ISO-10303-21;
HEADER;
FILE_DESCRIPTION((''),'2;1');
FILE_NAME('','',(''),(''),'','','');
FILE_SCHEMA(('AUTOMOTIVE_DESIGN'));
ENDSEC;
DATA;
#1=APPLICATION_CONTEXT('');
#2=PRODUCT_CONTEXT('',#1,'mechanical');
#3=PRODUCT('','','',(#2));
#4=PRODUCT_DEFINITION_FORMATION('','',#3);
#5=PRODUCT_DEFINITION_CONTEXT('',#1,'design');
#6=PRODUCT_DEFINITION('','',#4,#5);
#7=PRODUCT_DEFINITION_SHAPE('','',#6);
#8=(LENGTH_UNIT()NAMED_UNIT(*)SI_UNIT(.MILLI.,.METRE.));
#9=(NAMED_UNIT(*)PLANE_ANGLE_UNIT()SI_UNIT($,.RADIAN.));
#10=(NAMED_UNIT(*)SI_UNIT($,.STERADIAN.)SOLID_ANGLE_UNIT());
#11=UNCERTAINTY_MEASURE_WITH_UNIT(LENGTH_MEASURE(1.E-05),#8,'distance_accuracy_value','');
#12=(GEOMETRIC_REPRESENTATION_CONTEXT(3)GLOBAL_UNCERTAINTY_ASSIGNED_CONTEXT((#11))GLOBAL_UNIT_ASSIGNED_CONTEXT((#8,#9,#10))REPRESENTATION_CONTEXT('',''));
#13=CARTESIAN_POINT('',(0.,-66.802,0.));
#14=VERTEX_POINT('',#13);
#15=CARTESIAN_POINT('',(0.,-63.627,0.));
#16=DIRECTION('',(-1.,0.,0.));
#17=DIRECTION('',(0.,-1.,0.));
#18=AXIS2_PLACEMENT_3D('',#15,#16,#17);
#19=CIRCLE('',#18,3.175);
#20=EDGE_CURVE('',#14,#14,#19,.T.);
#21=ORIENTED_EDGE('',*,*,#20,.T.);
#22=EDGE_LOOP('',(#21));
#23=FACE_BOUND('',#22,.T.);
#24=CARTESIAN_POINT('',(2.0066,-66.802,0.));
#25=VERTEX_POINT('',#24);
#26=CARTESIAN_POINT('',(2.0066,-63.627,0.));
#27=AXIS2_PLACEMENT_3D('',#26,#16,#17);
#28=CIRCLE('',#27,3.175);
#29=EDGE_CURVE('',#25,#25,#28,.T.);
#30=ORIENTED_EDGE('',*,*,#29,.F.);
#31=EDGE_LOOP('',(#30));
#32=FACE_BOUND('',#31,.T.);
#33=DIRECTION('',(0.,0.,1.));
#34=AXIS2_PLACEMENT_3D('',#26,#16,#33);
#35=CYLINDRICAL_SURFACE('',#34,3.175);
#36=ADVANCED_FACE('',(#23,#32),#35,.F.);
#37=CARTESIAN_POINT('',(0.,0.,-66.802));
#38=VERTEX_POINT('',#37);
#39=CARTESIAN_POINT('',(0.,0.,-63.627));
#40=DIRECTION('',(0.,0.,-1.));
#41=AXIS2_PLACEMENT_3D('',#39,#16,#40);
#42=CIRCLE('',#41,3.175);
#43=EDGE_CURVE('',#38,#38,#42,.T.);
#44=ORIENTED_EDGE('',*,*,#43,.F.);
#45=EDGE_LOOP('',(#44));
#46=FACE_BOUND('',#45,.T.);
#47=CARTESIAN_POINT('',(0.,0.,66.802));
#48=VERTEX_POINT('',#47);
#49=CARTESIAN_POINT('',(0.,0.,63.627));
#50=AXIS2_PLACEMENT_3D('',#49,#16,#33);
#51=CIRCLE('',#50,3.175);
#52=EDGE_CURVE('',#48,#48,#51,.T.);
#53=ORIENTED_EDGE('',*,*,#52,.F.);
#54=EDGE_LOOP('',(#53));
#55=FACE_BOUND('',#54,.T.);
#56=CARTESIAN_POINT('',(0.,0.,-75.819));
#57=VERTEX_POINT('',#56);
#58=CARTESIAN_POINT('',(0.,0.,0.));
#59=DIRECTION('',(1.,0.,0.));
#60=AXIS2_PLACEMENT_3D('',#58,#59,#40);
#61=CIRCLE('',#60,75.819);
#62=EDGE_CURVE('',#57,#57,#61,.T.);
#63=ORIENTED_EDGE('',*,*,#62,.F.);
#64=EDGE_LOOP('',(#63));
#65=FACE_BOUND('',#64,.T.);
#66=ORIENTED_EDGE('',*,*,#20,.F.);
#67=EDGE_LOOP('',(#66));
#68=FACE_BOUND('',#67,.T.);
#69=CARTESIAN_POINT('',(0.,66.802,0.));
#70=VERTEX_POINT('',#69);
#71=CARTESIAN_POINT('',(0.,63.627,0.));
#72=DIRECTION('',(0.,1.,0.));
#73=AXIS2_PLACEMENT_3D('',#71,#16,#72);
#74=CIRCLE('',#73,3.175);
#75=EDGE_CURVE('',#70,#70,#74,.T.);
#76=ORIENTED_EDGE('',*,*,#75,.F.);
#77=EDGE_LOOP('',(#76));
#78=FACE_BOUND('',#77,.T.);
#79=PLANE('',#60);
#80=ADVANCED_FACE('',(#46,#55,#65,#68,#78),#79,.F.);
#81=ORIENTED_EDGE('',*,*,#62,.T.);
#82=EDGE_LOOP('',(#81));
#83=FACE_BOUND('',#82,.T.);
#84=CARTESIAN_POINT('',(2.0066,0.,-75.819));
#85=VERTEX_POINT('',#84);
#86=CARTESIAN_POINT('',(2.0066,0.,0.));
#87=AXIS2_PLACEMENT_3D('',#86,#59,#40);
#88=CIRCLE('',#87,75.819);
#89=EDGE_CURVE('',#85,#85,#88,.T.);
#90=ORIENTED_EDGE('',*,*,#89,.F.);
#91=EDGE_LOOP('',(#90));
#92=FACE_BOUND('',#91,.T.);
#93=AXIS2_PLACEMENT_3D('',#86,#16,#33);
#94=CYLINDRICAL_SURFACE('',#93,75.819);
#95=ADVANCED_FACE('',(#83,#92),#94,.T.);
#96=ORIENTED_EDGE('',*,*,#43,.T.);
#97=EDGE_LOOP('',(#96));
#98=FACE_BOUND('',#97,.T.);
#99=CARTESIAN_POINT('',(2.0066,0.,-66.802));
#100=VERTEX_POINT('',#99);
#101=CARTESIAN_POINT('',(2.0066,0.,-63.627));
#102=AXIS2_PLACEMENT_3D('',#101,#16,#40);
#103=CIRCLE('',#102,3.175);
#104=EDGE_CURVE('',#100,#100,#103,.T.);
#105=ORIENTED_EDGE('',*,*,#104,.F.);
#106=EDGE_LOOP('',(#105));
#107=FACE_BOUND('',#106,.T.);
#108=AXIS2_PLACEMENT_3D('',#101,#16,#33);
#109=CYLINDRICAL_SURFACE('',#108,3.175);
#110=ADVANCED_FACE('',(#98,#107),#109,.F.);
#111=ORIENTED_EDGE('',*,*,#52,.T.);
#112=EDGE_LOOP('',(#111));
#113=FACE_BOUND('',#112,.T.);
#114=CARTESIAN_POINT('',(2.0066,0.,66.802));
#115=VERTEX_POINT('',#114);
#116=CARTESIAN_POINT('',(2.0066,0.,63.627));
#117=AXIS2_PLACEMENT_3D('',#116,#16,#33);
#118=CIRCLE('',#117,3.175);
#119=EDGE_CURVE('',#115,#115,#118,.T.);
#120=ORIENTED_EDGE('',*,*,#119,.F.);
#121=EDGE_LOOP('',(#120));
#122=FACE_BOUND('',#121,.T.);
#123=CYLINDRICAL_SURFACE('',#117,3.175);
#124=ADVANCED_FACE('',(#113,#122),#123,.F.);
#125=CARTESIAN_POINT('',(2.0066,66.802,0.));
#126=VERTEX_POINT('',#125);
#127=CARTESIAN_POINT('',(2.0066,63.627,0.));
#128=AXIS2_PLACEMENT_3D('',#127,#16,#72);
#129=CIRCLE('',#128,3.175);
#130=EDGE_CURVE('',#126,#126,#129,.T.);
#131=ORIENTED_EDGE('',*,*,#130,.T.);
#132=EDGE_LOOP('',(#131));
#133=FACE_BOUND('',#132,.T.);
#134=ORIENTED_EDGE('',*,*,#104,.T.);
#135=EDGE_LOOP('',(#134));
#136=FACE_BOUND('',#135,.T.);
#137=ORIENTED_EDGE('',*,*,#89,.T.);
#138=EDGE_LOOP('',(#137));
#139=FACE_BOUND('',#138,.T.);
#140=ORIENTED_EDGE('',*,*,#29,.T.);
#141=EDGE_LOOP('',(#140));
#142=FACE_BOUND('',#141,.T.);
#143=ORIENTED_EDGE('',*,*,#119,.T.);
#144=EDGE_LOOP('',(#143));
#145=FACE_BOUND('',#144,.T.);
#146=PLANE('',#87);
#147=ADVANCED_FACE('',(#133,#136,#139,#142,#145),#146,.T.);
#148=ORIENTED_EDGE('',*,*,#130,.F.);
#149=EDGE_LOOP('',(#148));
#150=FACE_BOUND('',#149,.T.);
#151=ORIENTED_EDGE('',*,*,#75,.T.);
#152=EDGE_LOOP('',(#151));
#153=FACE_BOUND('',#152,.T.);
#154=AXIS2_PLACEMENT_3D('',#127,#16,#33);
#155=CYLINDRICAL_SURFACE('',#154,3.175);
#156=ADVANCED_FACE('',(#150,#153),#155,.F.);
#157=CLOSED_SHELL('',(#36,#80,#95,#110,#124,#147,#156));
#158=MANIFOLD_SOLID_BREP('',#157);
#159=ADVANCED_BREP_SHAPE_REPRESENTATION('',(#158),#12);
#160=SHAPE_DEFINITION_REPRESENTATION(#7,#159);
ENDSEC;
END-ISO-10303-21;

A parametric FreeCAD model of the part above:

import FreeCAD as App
import Part
import Sketcher

V = App.Vector
Q = App.Units.Quantity

doc = App.newDocument("Part")
params = doc.addObject("Spreadsheet::Sheet", "Params")
for row, (alias, value) in enumerate([
    ("sketch1_diameter", "5.97 in"),
    ("pad1_length", "0.079 in"),
    ("sketch2_diameter", "0.25 in"),
], start=1):
    params.set(f"A{row}", alias)
    params.set(f"B{row}", "=" + value)
    params.setAlias(f"B{row}", alias)

body = doc.addObject("PartDesign::Body", "Body")

# Sketch on YZ plane
sketch1 = doc.addObject("Sketcher::SketchObject", "Sketch")
body.addObject(sketch1)
sketch1.AttachmentSupport = (doc.YZ_Plane, [""])
sketch1.MapMode = "FlatFace"
sketch1.addGeometry(Part.Circle(V(0, 0, 0), V(0, 0, 1), 76), False)
sketch1.addConstraint([
    Sketcher.Constraint("Coincident", 0, 3, -1, 1),
    Sketcher.Constraint("Diameter", 0, Q("5.97 in")),
])
sketch1.setExpression("Constraints[1]", "Params.sketch1_diameter")
pad1 = doc.addObject("PartDesign::Pad", "Pad")
body.addObject(pad1)
pad1.Profile = sketch1
pad1.setExpression("Length", "Params.pad1_length")

# Sketch on YZ plane
sketch2 = doc.addObject("Sketcher::SketchObject", "Sketch001")
body.addObject(sketch2)
sketch2.AttachmentSupport = (doc.YZ_Plane, [""])
sketch2.MapMode = "FlatFace"
sketch2.addGeometry(Part.Circle(V(0, 63.6, 0), V(0, 0, 1), 3.2), False)
sketch2.addConstraint([
    Sketcher.Constraint("PointOnObject", 0, 3, -2),
    Sketcher.Constraint("Diameter", 0, Q("0.25 in")),
    Sketcher.Constraint("DistanceY", -1, 1, 0, 3, Q("2.505 in")),
])
sketch2.setExpression("Constraints[1]", "Params.sketch2_diameter")
pocket1 = doc.addObject("PartDesign::Pocket", "Pocket")
body.addObject(pocket1)
pocket1.Profile = sketch2
pocket1.Type = "ThroughAll"
pocket1.Reversed = True
doc.recompute()

polarpattern = doc.addObject("PartDesign::PolarPattern", "PolarPattern")
body.addObject(polarpattern)
polarpattern.Originals = [pocket1]
polarpattern.Axis = (doc.X_Axis, [""])
polarpattern.Angle = 360
polarpattern.Occurrences = 4
body.Tip = polarpattern

doc.recompute()
